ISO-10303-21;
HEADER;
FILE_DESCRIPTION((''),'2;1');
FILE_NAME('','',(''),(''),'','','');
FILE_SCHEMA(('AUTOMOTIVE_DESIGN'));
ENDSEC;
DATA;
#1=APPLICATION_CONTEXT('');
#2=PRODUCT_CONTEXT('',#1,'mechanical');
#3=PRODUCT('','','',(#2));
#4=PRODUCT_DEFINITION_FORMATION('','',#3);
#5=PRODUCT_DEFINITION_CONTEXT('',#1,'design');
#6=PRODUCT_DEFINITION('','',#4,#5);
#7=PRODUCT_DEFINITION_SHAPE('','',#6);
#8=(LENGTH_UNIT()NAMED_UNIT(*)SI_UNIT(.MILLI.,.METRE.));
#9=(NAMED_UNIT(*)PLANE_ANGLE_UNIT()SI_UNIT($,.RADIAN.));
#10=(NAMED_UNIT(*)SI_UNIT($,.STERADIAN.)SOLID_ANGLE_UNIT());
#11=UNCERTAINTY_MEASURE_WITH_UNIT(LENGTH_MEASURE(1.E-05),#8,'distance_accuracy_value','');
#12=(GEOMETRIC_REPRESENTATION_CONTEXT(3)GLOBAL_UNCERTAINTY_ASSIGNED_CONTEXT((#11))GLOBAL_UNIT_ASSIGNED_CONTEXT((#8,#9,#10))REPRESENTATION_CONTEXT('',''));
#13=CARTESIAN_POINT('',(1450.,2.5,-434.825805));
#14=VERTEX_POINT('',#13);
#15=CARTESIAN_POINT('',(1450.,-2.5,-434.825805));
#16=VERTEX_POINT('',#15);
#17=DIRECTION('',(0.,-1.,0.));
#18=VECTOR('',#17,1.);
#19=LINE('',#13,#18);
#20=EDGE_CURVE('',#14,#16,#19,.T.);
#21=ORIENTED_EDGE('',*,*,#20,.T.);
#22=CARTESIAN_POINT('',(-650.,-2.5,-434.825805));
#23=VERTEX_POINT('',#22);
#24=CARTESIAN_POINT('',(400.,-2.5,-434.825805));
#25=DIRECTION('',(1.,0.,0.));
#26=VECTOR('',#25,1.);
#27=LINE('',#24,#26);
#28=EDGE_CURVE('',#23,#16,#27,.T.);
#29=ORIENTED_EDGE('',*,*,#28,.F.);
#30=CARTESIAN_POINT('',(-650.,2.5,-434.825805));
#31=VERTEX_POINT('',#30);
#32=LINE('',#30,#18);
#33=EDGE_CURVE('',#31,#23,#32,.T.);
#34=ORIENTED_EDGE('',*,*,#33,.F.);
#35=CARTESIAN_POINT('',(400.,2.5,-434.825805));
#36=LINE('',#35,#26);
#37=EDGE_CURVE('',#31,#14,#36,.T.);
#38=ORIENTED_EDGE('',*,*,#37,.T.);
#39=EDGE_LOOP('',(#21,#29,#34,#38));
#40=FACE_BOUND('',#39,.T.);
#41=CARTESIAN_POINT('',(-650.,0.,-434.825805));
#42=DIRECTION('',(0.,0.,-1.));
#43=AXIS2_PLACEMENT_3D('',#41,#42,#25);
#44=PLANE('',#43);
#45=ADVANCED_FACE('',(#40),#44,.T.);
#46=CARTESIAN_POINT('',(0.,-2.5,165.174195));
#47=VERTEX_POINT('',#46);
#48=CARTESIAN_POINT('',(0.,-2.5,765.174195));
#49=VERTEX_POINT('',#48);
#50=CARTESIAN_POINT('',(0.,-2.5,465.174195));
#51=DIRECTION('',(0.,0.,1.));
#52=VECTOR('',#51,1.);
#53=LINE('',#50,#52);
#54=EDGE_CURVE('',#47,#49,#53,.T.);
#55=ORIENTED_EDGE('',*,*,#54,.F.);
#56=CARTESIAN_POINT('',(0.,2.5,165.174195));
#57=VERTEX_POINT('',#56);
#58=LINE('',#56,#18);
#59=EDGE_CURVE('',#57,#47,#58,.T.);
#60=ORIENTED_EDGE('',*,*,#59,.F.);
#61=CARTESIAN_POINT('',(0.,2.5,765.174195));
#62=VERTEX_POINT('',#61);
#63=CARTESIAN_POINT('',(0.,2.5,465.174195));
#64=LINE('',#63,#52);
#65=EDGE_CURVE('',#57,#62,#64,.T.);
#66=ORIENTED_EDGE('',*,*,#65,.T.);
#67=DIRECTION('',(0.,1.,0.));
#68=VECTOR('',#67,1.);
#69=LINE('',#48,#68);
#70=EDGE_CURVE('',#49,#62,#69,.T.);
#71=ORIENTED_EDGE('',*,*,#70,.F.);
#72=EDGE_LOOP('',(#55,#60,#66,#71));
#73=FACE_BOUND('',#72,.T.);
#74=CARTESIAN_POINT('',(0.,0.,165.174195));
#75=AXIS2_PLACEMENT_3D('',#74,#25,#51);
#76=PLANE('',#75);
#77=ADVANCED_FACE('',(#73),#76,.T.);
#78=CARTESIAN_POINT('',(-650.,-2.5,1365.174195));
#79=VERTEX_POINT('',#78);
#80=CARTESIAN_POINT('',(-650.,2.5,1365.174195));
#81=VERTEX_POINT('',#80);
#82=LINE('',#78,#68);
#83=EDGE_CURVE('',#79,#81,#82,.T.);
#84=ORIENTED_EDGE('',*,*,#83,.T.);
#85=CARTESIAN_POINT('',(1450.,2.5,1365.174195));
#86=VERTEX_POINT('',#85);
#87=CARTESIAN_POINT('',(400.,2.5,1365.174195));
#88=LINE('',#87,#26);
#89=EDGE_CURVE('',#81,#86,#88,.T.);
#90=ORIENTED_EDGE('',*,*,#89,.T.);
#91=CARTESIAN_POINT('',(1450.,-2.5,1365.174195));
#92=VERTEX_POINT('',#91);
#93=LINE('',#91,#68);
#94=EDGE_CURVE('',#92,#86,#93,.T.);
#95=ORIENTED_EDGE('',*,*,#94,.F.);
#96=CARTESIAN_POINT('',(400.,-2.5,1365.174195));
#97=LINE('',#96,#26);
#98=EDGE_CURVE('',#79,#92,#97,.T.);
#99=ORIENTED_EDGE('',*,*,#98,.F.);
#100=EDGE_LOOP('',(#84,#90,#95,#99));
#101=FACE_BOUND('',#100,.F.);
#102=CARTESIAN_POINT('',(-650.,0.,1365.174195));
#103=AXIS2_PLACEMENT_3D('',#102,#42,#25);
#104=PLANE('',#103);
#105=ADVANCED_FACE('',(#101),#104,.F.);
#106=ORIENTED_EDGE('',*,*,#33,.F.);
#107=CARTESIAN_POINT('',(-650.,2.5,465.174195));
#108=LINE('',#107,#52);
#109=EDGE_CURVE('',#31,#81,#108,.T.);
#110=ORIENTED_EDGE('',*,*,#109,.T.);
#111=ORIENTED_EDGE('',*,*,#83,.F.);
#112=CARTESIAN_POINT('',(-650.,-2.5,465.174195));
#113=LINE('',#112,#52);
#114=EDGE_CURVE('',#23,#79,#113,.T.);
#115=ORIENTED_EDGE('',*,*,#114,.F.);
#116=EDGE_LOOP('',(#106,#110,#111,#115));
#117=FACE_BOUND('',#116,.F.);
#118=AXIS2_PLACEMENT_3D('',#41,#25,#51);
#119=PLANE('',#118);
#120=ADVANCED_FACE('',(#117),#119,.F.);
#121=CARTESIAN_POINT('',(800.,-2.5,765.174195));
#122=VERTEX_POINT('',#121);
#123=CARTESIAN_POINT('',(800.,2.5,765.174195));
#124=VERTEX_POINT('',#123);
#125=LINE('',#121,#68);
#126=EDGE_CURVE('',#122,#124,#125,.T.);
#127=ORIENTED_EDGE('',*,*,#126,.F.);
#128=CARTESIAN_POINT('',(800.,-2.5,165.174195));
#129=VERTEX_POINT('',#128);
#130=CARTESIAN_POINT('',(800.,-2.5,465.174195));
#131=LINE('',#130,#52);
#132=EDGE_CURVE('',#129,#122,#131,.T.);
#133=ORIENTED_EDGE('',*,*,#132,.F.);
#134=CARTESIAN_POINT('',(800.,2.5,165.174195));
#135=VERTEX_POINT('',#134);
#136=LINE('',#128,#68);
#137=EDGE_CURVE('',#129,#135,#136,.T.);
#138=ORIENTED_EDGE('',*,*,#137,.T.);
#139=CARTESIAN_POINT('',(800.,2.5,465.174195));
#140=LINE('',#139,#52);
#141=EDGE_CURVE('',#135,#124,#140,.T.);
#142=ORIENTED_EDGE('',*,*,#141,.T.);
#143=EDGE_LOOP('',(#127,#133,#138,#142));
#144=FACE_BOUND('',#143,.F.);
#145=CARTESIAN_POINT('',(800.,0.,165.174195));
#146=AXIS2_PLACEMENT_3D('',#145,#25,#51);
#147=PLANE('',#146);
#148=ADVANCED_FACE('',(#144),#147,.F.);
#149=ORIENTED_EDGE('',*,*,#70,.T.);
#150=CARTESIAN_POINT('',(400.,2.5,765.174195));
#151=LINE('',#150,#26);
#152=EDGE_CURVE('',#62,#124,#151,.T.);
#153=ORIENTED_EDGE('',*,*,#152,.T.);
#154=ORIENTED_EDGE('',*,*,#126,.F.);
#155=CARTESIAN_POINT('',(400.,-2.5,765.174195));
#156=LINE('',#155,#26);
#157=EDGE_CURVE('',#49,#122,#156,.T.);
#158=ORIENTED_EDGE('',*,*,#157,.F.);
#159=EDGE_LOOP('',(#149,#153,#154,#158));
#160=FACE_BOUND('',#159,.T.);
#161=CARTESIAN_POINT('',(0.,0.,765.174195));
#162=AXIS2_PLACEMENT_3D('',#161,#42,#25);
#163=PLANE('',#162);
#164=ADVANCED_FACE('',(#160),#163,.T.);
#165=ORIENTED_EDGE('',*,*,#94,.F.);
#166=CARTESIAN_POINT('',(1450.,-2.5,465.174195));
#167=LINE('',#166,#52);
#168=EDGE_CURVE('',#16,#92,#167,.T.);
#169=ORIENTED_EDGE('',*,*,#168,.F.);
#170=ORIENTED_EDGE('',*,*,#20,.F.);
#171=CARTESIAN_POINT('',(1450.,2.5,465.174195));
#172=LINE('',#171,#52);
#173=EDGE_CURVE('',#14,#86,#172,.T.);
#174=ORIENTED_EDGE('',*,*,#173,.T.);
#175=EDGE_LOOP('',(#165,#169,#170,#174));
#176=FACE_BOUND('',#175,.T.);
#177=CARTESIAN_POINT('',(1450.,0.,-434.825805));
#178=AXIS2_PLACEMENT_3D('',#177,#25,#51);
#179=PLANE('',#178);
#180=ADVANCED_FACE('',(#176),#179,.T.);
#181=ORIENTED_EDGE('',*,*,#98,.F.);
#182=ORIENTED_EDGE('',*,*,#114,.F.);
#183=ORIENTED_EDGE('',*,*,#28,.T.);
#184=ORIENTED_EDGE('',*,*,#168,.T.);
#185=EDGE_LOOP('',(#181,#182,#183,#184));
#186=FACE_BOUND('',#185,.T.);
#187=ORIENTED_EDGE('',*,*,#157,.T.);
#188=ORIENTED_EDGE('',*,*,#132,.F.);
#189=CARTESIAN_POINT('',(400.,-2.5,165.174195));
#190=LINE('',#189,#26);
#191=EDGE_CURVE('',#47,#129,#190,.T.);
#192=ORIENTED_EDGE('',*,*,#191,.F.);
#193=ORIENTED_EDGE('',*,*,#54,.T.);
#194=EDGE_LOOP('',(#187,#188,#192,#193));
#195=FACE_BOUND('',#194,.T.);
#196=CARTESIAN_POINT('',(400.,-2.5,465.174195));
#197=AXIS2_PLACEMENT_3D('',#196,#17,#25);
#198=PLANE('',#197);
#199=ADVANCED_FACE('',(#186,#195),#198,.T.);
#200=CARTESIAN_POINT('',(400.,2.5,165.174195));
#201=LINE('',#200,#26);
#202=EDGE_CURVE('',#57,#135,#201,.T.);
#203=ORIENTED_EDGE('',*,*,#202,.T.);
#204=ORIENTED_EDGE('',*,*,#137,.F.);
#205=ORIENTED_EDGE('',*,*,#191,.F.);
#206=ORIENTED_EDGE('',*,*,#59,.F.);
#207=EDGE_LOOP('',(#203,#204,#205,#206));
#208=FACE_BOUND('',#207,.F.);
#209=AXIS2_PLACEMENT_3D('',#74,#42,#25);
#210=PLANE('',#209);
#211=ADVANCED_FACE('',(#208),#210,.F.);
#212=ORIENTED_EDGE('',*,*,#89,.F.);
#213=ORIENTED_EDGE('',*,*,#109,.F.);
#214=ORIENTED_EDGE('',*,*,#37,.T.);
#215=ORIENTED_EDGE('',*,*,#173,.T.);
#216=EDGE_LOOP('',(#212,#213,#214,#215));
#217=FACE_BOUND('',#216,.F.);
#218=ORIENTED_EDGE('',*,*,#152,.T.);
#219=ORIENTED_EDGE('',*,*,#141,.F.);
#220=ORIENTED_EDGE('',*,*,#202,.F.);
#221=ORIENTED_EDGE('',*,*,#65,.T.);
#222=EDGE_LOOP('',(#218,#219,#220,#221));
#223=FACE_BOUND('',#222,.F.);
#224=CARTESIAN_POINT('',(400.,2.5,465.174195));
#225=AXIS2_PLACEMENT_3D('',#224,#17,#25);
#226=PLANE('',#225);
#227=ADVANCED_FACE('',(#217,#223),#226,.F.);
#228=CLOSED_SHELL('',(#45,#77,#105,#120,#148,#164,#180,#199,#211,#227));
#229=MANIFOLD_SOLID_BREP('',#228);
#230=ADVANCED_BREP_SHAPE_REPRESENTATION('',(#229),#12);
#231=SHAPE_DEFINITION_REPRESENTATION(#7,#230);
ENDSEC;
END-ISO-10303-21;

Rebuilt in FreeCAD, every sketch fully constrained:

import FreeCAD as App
import Part
import Sketcher

doc = App.newDocument("Part")
body = doc.addObject("PartDesign::Body", "Body")

# Sketch on XZ plane
sketch1 = body.newObject("Sketcher::SketchObject", "Sketch")
sketch1.AttachmentSupport = (doc.getObject("XZ_Plane"), [""])
sketch1.MapMode = "FlatFace"
sketch1.addGeometry([
    Part.LineSegment(App.Vector(-650, 1365, 0), App.Vector(-650, -435, 0)),  # 0
    Part.LineSegment(App.Vector(-650, -435, 0), App.Vector(1450, -435, 0)),  # 1
    Part.LineSegment(App.Vector(1450, -435, 0), App.Vector(1450, 1365, 0)),  # 2
    Part.LineSegment(App.Vector(1450, 1365, 0), App.Vector(-650, 1365, 0)),  # 3
    Part.LineSegment(App.Vector(800, 165, 0), App.Vector(0, 165, 0)),  # 4
    Part.LineSegment(App.Vector(0, 165, 0), App.Vector(0, 765, 0)),  # 5
    Part.LineSegment(App.Vector(0, 765, 0), App.Vector(800, 765, 0)),  # 6
    Part.LineSegment(App.Vector(800, 765, 0), App.Vector(800, 165, 0)),  # 7
], False)
sketch1.addConstraint([
    Sketcher.Constraint("Coincident", 0, 2, 1, 1),
    Sketcher.Constraint("Coincident", 1, 2, 2, 1),
    Sketcher.Constraint("Coincident", 2, 2, 3, 1),
    Sketcher.Constraint("Coincident", 3, 2, 0, 1),
    Sketcher.Constraint("Coincident", 4, 2, 5, 1),
    Sketcher.Constraint("Coincident", 5, 2, 6, 1),
    Sketcher.Constraint("Coincident", 6, 2, 7, 1),
    Sketcher.Constraint("Coincident", 7, 2, 4, 1),
    Sketcher.Constraint("Vertical", 0),
    Sketcher.Constraint("Horizontal", 1),
    Sketcher.Constraint("Vertical", 2),
    Sketcher.Constraint("Horizontal", 3),
    Sketcher.Constraint("Horizontal", 4),
    Sketcher.Constraint("Vertical", 5),
    Sketcher.Constraint("Horizontal", 6),
    Sketcher.Constraint("Vertical", 7),
    Sketcher.Constraint("PointOnObject", 4, 2, -2),
    Sketcher.Constraint("DistanceX", 1, 1, 1, 2, 2100.0),
    Sketcher.Constraint("DistanceX", 4, 2, 4, 1, 800.0),
    Sketcher.Constraint("DistanceY", 0, 2, 0, 1, 1800.0),
    Sketcher.Constraint("DistanceY", 5, 1, 5, 2, 600.0),
    Sketcher.Constraint("DistanceX", 0, 2, -1, 1, 650.0),
    Sketcher.Constraint("DistanceY", 0, 2, 4, 2, 600.0),
    Sketcher.Constraint("DistanceY", 0, 2, -1, 1, 434.825805),
])
pad1 = body.newObject("PartDesign::Pad", "Pad")
pad1.Profile = sketch1
pad1.Length = 5
pad1.Midplane = True

doc.recompute()
